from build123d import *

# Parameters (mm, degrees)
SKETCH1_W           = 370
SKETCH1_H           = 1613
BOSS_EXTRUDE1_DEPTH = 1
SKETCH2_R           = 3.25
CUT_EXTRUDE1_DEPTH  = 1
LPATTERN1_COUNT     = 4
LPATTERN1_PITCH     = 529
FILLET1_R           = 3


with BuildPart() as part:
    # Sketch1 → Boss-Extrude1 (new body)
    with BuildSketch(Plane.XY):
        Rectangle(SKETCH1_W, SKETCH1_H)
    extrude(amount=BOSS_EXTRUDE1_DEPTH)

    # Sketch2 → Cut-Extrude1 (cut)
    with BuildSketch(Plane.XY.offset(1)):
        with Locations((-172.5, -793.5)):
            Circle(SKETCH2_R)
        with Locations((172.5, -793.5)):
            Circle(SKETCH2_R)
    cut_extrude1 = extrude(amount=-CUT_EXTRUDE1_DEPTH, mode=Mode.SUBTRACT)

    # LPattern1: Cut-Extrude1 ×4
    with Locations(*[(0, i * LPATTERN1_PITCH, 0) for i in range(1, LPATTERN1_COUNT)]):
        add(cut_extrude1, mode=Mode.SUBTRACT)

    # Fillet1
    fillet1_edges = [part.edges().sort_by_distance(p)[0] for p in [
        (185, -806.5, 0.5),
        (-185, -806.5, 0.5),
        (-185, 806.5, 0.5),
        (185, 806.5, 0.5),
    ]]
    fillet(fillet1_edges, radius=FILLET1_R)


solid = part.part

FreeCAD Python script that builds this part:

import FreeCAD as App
import Part
import Sketcher
from FreeCAD import Vector


def edges_at(feature, points):
    """Names of the edges that pass closest to the given points."""
    edges = feature.Shape.Edges
    near = lambda p: min(range(len(edges)), key=lambda i: edges[i].distToShape(Part.Vertex(*p))[0])
    return sorted({f"Edge{near(p) + 1}" for p in points})


def add_polygon(sketch, points):
    """Adds a closed chain of lines whose ends are joined by coincident constraints."""
    first, n = sketch.GeometryCount, len(points)
    for a, b in zip(points, points[1:] + points[:1]):
        sketch.addGeometry(Part.LineSegment(App.Vector(*a, 0), App.Vector(*b, 0)), False)
    for i in range(n):
        sketch.addConstraint(Sketcher.Constraint("Coincident", first + i, 2, first + (i + 1) % n, 1))

doc = App.newDocument("Part")
body = doc.addObject("PartDesign::Body", "Body")

sketch1 = doc.addObject("Sketcher::SketchObject", "Sketch")
body.addObject(sketch1)
sketch1.AttachmentSupport = (doc.XY_Plane, [""])
sketch1.MapMode = "FlatFace"
add_polygon(sketch1, [(-185, 806), (-185, -806), (185, -806), (185, 806)])
sketch1.addConstraint(Sketcher.Constraint("Vertical", 0))
sketch1.addConstraint(Sketcher.Constraint("Horizontal", 1))
sketch1.addConstraint(Sketcher.Constraint("Vertical", 2))
sketch1.addConstraint(Sketcher.Constraint("Horizontal", 3))
sketch1.addConstraint(Sketcher.Constraint("Symmetric", 0, 2, 2, 2, -1, 1))
sketch1.addConstraint(Sketcher.Constraint("DistanceX", 1, 1, 1, 2, 370.0))
sketch1.addConstraint(Sketcher.Constraint("DistanceY", 0, 2, 0, 1, 1613.0))
pad1 = doc.addObject("PartDesign::Pad", "Pad")
body.addObject(pad1)
pad1.Profile = sketch1
pad1.Length = 1

sketch2 = doc.addObject("Sketcher::SketchObject", "Sketch001")
body.addObject(sketch2)
sketch2.AttachmentSupport = (doc.XY_Plane, [""])
sketch2.MapMode = "FlatFace"
sketch2.AttachmentOffset = App.Placement(Vector(0, 0, 1), App.Rotation())
sketch2.addGeometry(Part.Circle(Vector(-172.5, -793.5, 0), Vector(0, 0, 1), 3.2), False)
sketch2.addGeometry(Part.Circle(Vector(172.5, -793.5, 0), Vector(0, 0, 1), 3.2), False)
sketch2.addConstraint(Sketcher.Constraint("Equal", 0, 1))
sketch2.addConstraint(Sketcher.Constraint("Symmetric", 0, 3, 1, 3, -2))
sketch2.addConstraint(Sketcher.Constraint("Diameter", 0, 6.5))
sketch2.addConstraint(Sketcher.Constraint("DistanceX", 0, 3, 1, 3, 345.0))
sketch2.addConstraint(Sketcher.Constraint("DistanceY", 0, 3, -1, 1, 793.5))
pocket1 = doc.addObject("PartDesign::Pocket", "Pocket")
body.addObject(pocket1)
pocket1.Profile = sketch2
pocket1.Length = 1
doc.recompute()

linearpattern = doc.addObject("PartDesign::LinearPattern", "LinearPattern")
body.addObject(linearpattern)
linearpattern.Originals = [pocket1]
linearpattern.Direction = (doc.Y_Axis, [""])
linearpattern.Mode = "offset"
linearpattern.Offset = 529
linearpattern.Occurrences = 4
body.Tip = linearpattern
doc.recompute()

fillet = doc.addObject("PartDesign::Fillet", "Fillet")
body.addObject(fillet)
fillet.Base = (linearpattern, edges_at(linearpattern, [
    (185, -806.5, 0.5),
    (-185, -806.5, 0.5),
    (-185, 806.5, 0.5),
    (185, 806.5, 0.5),
]))
fillet.Radius = 3

doc.recompute()
